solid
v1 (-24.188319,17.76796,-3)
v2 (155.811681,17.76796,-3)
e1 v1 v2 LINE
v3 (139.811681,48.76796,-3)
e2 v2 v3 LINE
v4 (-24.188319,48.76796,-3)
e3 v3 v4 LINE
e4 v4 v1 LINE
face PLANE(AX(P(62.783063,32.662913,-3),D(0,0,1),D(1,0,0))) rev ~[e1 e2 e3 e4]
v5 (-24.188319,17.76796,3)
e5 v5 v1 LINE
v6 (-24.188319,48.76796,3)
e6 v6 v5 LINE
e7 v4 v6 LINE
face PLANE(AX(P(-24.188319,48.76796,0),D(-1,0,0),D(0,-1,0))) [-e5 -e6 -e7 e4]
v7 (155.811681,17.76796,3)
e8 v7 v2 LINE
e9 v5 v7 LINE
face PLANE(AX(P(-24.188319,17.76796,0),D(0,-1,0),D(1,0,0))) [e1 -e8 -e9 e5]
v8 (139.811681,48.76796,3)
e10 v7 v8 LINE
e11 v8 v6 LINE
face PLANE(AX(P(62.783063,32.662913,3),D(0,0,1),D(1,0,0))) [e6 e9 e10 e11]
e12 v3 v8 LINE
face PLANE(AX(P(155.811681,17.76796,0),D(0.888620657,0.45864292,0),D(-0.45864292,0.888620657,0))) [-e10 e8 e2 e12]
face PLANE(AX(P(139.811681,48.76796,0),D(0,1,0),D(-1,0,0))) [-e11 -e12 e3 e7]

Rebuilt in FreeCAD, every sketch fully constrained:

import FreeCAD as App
import Part
import Sketcher

V = App.Vector

doc = App.newDocument("Part")
body = doc.addObject("PartDesign::Body", "Body")

# Sketch on XY plane
sketch1 = body.newObject("Sketcher::SketchObject", "Sketch")
sketch1.AttachmentSupport = (doc.getObject("XY_Plane"), [""])
sketch1.MapMode = "FlatFace"
sketch1.addGeometry([
    Part.LineSegment(V(156, 18, 0), V(140, 49, 0)),
    Part.LineSegment(V(140, 49, 0), V(-24, 49, 0)),
    Part.LineSegment(V(-24, 49, 0), V(-24, 18, 0)),
    Part.LineSegment(V(-24, 18, 0), V(156, 18, 0)),
], False)
sketch1.addConstraint([
    Sketcher.Constraint("Coincident", 0, 2, 1, 1),
    Sketcher.Constraint("Coincident", 1, 2, 2, 1),
    Sketcher.Constraint("Coincident", 2, 2, 3, 1),
    Sketcher.Constraint("Coincident", 3, 2, 0, 1),
    Sketcher.Constraint("Horizontal", 1),
    Sketcher.Constraint("Vertical", 2),
    Sketcher.Constraint("Horizontal", 3),
    Sketcher.Constraint("DistanceX", 1, 2, 1, 1, 164.0),
    Sketcher.Constraint("DistanceX", 3, 1, 3, 2, 180.0),
    Sketcher.Constraint("DistanceY", 2, 2, 2, 1, 31.0),
    Sketcher.Constraint("DistanceX", -1, 1, 0, 2, 139.811681),
    Sketcher.Constraint("DistanceY", -1, 1, 0, 2, 48.76796),
])
pad1 = body.newObject("PartDesign::Pad", "Pad")
pad1.Profile = sketch1
pad1.Length = 6
pad1.Midplane = True

doc.recompute()
